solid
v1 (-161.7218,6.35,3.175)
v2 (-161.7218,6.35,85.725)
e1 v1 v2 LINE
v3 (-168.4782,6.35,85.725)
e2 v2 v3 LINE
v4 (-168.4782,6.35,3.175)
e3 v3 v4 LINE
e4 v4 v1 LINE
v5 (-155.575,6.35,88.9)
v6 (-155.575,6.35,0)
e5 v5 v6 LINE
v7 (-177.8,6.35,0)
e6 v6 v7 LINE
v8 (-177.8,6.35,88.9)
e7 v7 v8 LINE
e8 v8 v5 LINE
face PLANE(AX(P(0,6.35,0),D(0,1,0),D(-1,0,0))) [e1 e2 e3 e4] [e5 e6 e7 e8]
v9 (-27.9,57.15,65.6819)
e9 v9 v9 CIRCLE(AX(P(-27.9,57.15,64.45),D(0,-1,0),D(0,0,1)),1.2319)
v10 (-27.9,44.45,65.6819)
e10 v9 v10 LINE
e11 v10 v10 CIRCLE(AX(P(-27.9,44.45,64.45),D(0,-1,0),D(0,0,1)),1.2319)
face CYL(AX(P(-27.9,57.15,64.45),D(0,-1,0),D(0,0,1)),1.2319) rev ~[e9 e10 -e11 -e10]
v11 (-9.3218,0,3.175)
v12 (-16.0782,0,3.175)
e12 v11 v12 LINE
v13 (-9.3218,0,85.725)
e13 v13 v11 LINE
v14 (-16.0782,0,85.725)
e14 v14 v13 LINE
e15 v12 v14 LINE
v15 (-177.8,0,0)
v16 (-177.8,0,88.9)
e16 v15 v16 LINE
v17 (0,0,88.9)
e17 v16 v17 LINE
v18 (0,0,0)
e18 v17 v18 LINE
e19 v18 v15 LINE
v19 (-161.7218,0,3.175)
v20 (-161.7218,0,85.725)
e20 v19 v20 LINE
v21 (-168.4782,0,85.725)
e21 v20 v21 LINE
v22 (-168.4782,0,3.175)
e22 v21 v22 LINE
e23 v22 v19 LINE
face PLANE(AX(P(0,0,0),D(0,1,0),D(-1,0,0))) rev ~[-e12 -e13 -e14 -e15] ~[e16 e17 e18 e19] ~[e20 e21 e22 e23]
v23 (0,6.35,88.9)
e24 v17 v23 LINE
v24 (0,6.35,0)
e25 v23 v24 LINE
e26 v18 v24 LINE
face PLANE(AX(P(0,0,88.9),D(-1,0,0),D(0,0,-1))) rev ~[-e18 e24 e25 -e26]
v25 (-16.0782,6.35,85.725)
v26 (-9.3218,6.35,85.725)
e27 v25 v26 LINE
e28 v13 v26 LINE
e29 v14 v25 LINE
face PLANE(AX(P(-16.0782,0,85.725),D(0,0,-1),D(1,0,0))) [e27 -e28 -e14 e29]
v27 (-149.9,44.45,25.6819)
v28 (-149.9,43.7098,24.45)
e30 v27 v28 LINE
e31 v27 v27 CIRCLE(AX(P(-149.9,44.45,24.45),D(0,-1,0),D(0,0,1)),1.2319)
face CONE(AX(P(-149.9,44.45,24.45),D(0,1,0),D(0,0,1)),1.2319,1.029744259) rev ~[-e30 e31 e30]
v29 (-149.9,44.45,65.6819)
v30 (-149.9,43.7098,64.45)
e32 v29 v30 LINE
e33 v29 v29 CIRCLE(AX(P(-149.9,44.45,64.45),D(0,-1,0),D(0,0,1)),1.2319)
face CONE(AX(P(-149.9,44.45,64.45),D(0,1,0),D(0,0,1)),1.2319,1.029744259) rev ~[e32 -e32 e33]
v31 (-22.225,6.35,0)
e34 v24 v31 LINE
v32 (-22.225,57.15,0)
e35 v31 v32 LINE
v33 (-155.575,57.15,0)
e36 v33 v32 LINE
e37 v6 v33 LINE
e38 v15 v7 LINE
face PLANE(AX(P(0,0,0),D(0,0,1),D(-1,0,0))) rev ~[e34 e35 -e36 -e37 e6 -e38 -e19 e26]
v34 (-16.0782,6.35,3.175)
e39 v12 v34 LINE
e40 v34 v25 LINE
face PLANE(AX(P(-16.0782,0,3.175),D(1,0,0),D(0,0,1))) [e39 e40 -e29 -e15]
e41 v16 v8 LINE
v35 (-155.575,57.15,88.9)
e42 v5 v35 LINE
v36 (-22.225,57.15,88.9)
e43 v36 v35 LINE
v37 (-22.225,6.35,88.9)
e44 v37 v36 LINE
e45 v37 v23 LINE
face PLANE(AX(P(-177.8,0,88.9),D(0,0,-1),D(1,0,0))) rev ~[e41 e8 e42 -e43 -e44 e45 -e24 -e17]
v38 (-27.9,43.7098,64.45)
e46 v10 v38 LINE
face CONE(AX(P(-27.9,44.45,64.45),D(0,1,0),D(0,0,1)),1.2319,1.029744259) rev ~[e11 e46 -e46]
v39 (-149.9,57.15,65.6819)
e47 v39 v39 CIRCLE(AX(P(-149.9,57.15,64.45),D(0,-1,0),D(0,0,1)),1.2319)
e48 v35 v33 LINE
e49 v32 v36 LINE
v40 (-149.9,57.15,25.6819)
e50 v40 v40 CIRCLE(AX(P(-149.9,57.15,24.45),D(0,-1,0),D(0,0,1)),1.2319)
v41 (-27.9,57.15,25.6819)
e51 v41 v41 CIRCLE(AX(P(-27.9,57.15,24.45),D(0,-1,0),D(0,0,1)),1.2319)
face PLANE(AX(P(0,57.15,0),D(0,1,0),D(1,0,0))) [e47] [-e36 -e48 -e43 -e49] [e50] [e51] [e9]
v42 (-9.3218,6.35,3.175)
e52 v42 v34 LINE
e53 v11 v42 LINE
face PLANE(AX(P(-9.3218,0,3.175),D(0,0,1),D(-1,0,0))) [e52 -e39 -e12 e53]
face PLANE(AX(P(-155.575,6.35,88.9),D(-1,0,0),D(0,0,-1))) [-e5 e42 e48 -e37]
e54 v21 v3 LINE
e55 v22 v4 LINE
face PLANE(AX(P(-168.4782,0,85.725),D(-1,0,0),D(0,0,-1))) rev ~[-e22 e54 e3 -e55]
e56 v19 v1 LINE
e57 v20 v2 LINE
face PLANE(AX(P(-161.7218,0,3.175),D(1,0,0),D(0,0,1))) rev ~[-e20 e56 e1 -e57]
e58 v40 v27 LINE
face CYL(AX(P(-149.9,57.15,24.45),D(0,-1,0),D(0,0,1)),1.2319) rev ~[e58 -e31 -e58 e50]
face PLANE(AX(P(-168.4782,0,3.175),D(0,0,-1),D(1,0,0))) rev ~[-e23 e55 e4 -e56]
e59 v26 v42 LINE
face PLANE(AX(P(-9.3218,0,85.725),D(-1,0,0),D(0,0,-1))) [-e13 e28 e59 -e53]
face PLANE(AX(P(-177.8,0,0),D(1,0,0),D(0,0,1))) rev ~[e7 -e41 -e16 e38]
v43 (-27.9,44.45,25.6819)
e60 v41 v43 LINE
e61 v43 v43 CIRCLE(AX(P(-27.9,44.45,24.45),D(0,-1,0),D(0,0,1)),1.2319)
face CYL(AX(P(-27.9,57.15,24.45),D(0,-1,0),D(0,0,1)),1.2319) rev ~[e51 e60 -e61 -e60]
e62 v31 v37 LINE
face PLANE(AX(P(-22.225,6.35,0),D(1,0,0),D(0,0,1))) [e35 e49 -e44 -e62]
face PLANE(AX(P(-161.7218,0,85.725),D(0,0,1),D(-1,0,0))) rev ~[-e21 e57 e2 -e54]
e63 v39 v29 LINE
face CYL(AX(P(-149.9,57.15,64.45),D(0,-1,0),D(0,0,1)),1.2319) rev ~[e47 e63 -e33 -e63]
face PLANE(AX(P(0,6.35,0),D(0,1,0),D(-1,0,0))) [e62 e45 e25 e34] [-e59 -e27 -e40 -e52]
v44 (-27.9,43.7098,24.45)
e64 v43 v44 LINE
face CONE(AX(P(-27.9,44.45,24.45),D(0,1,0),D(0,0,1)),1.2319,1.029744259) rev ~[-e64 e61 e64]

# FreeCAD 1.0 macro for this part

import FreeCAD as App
import Part
import Sketcher
Q = App.Units.Quantity

doc = App.newDocument("Part")
params = doc.addObject("Spreadsheet::Sheet", "Params")
for row, (alias, value) in enumerate([
    ("sketch1_width", "7 in"),
    ("sketch1_height", "3.5 in"),
    ("sketch1_height2", "3.25 in"),
    ("sketch1_width2", "0.266 in"),
    ("pad1_length", "0.25 in"),
    ("sketch2_height", "3.5 in"),
    ("sketch2_width", "5.25 in"),
    ("pad2_length", "2 in"),
    ("sketch3_diameter", "0.097 in"),
    ("hole_diameter", "0.097 in"),
    ("hole_depth", "0.5 in"),
], start=1):
    params.set(f"A{row}", alias)
    params.set(f"B{row}", "=" + value)
    params.setAlias(f"B{row}", alias)

body = doc.addObject("PartDesign::Body", "Body")

sketch1 = doc.addObject("Sketcher::SketchObject", "Sketch")
body.addObject(sketch1)
sketch1.AttachmentSupport = (doc.XZ_Plane, [""])
sketch1.MapMode = "FlatFace"
sketch1.addGeometry([
    Part.LineSegment(App.Vector(0, 88.9, 0), App.Vector(0, 0, 0)),
    Part.LineSegment(App.Vector(0, 0, 0), App.Vector(-177.8, 0, 0)),
    Part.LineSegment(App.Vector(-177.8, 0, 0), App.Vector(-177.8, 88.9, 0)),
    Part.LineSegment(App.Vector(-177.8, 88.9, 0), App.Vector(0, 88.9, 0)),
    Part.LineSegment(App.Vector(-16.0782, 3.175, 0), App.Vector(-9.3218, 3.175, 0)),
    Part.LineSegment(App.Vector(-9.3218, 3.175, 0), App.Vector(-9.3218, 85.725, 0)),
    Part.LineSegment(App.Vector(-9.3218, 85.725, 0), App.Vector(-16.0782, 85.725, 0)),
    Part.LineSegment(App.Vector(-16.0782, 85.725, 0), App.Vector(-16.0782, 3.175, 0)),
    Part.LineSegment(App.Vector(-168.4782, 85.725, 0), App.Vector(-168.4782, 3.175, 0)),
    Part.LineSegment(App.Vector(-168.4782, 3.175, 0), App.Vector(-161.7218, 3.175, 0)),
    Part.LineSegment(App.Vector(-161.7218, 3.175, 0), App.Vector(-161.7218, 85.725, 0)),
    Part.LineSegment(App.Vector(-161.7218, 85.725, 0), App.Vector(-168.4782, 85.725, 0)),
], False)
sketch1.addConstraint([
    Sketcher.Constraint("Coincident", 0, 2, 1, 1),
    Sketcher.Constraint("Coincident", 1, 2, 2, 1),
    Sketcher.Constraint("Coincident", 2, 2, 3, 1),
    Sketcher.Constraint("Coincident", 3, 2, 0, 1),
    Sketcher.Constraint("Coincident", 4, 2, 5, 1),
    Sketcher.Constraint("Coincident", 5, 2, 6, 1),
    Sketcher.Constraint("Coincident", 6, 2, 7, 1),
    Sketcher.Constraint("Coincident", 7, 2, 4, 1),
    Sketcher.Constraint("Coincident", 8, 2, 9, 1),
    Sketcher.Constraint("Coincident", 9, 2, 10, 1),
    Sketcher.Constraint("Coincident", 10, 2, 11, 1),
    Sketcher.Constraint("Coincident", 11, 2, 8, 1),
    Sketcher.Constraint("Vertical", 0),
    Sketcher.Constraint("Horizontal", 1),
    Sketcher.Constraint("Vertical", 2),
    Sketcher.Constraint("Horizontal", 3),
    Sketcher.Constraint("Horizontal", 4),
    Sketcher.Constraint("Vertical", 5),
    Sketcher.Constraint("Horizontal", 6),
    Sketcher.Constraint("Vertical", 7),
    Sketcher.Constraint("Vertical", 8),
    Sketcher.Constraint("Horizontal", 9),
    Sketcher.Constraint("Vertical", 10),
    Sketcher.Constraint("Horizontal", 11),
    Sketcher.Constraint("Coincident", 0, 2, -1, 1),
    Sketcher.Constraint("Horizontal", 7, 2, 8, 2),
    Sketcher.Constraint("Horizontal", 6, 2, 10, 2),
    Sketcher.Constraint("Equal", 6, 9),
    Sketcher.Constraint("DistanceX", 1, 2, 1, 1, Q("7 in")),
    Sketcher.Constraint("DistanceY", 0, 2, 0, 1, Q("3.5 in")),
    Sketcher.Constraint("DistanceY", 5, 1, 5, 2, Q("3.25 in")),
    Sketcher.Constraint("DistanceX", 4, 1, 4, 2, Q("0.266 in")),
    Sketcher.Constraint("DistanceX", 8, 2, 7, 2, Q("6 in")),
    Sketcher.Constraint("DistanceX", 4, 2, -1, 1, Q("0.367 in")),
    Sketcher.Constraint("DistanceY", -1, 1, 4, 2, Q("0.125 in")),
])
sketch1.setExpression("Constraints[28]", "Params.sketch1_width")
sketch1.setExpression("Constraints[29]", "Params.sketch1_height")
sketch1.setExpression("Constraints[30]", "Params.sketch1_height2")
sketch1.setExpression("Constraints[31]", "Params.sketch1_width2")
pad1 = doc.addObject("PartDesign::Pad", "Pad")
body.addObject(pad1)
pad1.Profile = sketch1
pad1.setExpression("Length", "Params.pad1_length")
pad1.Reversed = True

sketch2 = doc.addObject("Sketcher::SketchObject", "Sketch001")
body.addObject(sketch2)
sketch2.AttachmentSupport = (doc.XZ_Plane, [""])
sketch2.MapMode = "FlatFace"
sketch2.AttachmentOffset = App.Placement(App.Vector(0, 0, -0.25 * 25.4), App.Rotation())
sketch2.addGeometry([
    Part.LineSegment(App.Vector(-22.225, 0, 0), App.Vector(-155.575, 0, 0)),
    Part.LineSegment(App.Vector(-155.575, 0, 0), App.Vector(-155.575, 88.9, 0)),
    Part.LineSegment(App.Vector(-155.575, 88.9, 0), App.Vector(-22.225, 88.9, 0)),
    Part.LineSegment(App.Vector(-22.225, 88.9, 0), App.Vector(-22.225, 0, 0)),
], False)
sketch2.addConstraint([
    Sketcher.Constraint("Coincident", 0, 2, 1, 1),
    Sketcher.Constraint("Coincident", 1, 2, 2, 1),
    Sketcher.Constraint("Coincident", 2, 2, 3, 1),
    Sketcher.Constraint("Coincident", 3, 2, 0, 1),
    Sketcher.Constraint("Horizontal", 0),
    Sketcher.Constraint("Vertical", 1),
    Sketcher.Constraint("Horizontal", 2),
    Sketcher.Constraint("Vertical", 3),
    Sketcher.Constraint("PointOnObject", 0, 2, -1),
    Sketcher.Constraint("DistanceY", 1, 1, 1, 2, Q("3.5 in")),
    Sketcher.Constraint("DistanceX", 0, 2, 0, 1, Q("5.25 in")),
    Sketcher.Constraint("DistanceX", 0, 2, -1, 1, Q("6.125 in")),
])
sketch2.setExpression("Constraints[9]", "Params.sketch2_height")
sketch2.setExpression("Constraints[10]", "Params.sketch2_width")
pad2 = doc.addObject("PartDesign::Pad", "Pad001")
body.addObject(pad2)
pad2.Profile = sketch2
pad2.setExpression("Length", "Params.pad2_length")
pad2.Reversed = True

sketch3 = doc.addObject("Sketcher::SketchObject", "Sketch002")
body.addObject(sketch3)
sketch3.AttachmentSupport = (doc.XZ_Plane, [""])
sketch3.MapMode = "FlatFace"
sketch3.AttachmentOffset = App.Placement(App.Vector(0, 0, -2.25 * 25.4), App.Rotation())
sketch3.addGeometry([
    Part.Circle(App.Vector(-149.9, 24.45, 0), App.Vector(0, 0, 1), 1.2319),
    Part.Circle(App.Vector(-149.9, 64.45, 0), App.Vector(0, 0, 1), 1.2319),
    Part.Circle(App.Vector(-27.9, 24.45, 0), App.Vector(0, 0, 1), 1.2319),
    Part.Circle(App.Vector(-27.9, 64.45, 0), App.Vector(0, 0, 1), 1.2319),
], False)
sketch3.addConstraint([
    Sketcher.Constraint("Equal", 0, 1),
    Sketcher.Constraint("Equal", 1, 2),
    Sketcher.Constraint("Equal", 2, 3),
    Sketcher.Constraint("Horizontal", 0, 3, 2, 3),
    Sketcher.Constraint("Horizontal", 1, 3, 3, 3),
    Sketcher.Constraint("Vertical", 0, 3, 1, 3),
    Sketcher.Constraint("Vertical", 2, 3, 3, 3),
    Sketcher.Constraint("Diameter", 0, Q("0.097 in")),
    Sketcher.Constraint("DistanceY", -1, 1, 0, 3, Q("0.9626 in")),
    Sketcher.Constraint("DistanceY", -1, 1, 1, 3, Q("2.5374 in")),
    Sketcher.Constraint("DistanceX", 0, 3, -1, 1, Q("149.9 mm")),
    Sketcher.Constraint("DistanceX", 2, 3, -1, 1, Q("27.9 mm")),
])
sketch3.setExpression("Constraints[7]", "Params.sketch3_diameter")
doc.recompute()
hole = doc.addObject("PartDesign::Hole", "Hole")
body.addObject(hole)
hole.Profile = sketch3
hole.ThreadType = "None"
hole.setExpression("Diameter", "Params.hole_diameter")
hole.DepthType = "Dimension"
hole.setExpression("Depth", "Params.hole_depth")
hole.DrillPoint = "Angled"
hole.DrillPointAngle = 118
hole.Reversed = True

doc.recompute()
